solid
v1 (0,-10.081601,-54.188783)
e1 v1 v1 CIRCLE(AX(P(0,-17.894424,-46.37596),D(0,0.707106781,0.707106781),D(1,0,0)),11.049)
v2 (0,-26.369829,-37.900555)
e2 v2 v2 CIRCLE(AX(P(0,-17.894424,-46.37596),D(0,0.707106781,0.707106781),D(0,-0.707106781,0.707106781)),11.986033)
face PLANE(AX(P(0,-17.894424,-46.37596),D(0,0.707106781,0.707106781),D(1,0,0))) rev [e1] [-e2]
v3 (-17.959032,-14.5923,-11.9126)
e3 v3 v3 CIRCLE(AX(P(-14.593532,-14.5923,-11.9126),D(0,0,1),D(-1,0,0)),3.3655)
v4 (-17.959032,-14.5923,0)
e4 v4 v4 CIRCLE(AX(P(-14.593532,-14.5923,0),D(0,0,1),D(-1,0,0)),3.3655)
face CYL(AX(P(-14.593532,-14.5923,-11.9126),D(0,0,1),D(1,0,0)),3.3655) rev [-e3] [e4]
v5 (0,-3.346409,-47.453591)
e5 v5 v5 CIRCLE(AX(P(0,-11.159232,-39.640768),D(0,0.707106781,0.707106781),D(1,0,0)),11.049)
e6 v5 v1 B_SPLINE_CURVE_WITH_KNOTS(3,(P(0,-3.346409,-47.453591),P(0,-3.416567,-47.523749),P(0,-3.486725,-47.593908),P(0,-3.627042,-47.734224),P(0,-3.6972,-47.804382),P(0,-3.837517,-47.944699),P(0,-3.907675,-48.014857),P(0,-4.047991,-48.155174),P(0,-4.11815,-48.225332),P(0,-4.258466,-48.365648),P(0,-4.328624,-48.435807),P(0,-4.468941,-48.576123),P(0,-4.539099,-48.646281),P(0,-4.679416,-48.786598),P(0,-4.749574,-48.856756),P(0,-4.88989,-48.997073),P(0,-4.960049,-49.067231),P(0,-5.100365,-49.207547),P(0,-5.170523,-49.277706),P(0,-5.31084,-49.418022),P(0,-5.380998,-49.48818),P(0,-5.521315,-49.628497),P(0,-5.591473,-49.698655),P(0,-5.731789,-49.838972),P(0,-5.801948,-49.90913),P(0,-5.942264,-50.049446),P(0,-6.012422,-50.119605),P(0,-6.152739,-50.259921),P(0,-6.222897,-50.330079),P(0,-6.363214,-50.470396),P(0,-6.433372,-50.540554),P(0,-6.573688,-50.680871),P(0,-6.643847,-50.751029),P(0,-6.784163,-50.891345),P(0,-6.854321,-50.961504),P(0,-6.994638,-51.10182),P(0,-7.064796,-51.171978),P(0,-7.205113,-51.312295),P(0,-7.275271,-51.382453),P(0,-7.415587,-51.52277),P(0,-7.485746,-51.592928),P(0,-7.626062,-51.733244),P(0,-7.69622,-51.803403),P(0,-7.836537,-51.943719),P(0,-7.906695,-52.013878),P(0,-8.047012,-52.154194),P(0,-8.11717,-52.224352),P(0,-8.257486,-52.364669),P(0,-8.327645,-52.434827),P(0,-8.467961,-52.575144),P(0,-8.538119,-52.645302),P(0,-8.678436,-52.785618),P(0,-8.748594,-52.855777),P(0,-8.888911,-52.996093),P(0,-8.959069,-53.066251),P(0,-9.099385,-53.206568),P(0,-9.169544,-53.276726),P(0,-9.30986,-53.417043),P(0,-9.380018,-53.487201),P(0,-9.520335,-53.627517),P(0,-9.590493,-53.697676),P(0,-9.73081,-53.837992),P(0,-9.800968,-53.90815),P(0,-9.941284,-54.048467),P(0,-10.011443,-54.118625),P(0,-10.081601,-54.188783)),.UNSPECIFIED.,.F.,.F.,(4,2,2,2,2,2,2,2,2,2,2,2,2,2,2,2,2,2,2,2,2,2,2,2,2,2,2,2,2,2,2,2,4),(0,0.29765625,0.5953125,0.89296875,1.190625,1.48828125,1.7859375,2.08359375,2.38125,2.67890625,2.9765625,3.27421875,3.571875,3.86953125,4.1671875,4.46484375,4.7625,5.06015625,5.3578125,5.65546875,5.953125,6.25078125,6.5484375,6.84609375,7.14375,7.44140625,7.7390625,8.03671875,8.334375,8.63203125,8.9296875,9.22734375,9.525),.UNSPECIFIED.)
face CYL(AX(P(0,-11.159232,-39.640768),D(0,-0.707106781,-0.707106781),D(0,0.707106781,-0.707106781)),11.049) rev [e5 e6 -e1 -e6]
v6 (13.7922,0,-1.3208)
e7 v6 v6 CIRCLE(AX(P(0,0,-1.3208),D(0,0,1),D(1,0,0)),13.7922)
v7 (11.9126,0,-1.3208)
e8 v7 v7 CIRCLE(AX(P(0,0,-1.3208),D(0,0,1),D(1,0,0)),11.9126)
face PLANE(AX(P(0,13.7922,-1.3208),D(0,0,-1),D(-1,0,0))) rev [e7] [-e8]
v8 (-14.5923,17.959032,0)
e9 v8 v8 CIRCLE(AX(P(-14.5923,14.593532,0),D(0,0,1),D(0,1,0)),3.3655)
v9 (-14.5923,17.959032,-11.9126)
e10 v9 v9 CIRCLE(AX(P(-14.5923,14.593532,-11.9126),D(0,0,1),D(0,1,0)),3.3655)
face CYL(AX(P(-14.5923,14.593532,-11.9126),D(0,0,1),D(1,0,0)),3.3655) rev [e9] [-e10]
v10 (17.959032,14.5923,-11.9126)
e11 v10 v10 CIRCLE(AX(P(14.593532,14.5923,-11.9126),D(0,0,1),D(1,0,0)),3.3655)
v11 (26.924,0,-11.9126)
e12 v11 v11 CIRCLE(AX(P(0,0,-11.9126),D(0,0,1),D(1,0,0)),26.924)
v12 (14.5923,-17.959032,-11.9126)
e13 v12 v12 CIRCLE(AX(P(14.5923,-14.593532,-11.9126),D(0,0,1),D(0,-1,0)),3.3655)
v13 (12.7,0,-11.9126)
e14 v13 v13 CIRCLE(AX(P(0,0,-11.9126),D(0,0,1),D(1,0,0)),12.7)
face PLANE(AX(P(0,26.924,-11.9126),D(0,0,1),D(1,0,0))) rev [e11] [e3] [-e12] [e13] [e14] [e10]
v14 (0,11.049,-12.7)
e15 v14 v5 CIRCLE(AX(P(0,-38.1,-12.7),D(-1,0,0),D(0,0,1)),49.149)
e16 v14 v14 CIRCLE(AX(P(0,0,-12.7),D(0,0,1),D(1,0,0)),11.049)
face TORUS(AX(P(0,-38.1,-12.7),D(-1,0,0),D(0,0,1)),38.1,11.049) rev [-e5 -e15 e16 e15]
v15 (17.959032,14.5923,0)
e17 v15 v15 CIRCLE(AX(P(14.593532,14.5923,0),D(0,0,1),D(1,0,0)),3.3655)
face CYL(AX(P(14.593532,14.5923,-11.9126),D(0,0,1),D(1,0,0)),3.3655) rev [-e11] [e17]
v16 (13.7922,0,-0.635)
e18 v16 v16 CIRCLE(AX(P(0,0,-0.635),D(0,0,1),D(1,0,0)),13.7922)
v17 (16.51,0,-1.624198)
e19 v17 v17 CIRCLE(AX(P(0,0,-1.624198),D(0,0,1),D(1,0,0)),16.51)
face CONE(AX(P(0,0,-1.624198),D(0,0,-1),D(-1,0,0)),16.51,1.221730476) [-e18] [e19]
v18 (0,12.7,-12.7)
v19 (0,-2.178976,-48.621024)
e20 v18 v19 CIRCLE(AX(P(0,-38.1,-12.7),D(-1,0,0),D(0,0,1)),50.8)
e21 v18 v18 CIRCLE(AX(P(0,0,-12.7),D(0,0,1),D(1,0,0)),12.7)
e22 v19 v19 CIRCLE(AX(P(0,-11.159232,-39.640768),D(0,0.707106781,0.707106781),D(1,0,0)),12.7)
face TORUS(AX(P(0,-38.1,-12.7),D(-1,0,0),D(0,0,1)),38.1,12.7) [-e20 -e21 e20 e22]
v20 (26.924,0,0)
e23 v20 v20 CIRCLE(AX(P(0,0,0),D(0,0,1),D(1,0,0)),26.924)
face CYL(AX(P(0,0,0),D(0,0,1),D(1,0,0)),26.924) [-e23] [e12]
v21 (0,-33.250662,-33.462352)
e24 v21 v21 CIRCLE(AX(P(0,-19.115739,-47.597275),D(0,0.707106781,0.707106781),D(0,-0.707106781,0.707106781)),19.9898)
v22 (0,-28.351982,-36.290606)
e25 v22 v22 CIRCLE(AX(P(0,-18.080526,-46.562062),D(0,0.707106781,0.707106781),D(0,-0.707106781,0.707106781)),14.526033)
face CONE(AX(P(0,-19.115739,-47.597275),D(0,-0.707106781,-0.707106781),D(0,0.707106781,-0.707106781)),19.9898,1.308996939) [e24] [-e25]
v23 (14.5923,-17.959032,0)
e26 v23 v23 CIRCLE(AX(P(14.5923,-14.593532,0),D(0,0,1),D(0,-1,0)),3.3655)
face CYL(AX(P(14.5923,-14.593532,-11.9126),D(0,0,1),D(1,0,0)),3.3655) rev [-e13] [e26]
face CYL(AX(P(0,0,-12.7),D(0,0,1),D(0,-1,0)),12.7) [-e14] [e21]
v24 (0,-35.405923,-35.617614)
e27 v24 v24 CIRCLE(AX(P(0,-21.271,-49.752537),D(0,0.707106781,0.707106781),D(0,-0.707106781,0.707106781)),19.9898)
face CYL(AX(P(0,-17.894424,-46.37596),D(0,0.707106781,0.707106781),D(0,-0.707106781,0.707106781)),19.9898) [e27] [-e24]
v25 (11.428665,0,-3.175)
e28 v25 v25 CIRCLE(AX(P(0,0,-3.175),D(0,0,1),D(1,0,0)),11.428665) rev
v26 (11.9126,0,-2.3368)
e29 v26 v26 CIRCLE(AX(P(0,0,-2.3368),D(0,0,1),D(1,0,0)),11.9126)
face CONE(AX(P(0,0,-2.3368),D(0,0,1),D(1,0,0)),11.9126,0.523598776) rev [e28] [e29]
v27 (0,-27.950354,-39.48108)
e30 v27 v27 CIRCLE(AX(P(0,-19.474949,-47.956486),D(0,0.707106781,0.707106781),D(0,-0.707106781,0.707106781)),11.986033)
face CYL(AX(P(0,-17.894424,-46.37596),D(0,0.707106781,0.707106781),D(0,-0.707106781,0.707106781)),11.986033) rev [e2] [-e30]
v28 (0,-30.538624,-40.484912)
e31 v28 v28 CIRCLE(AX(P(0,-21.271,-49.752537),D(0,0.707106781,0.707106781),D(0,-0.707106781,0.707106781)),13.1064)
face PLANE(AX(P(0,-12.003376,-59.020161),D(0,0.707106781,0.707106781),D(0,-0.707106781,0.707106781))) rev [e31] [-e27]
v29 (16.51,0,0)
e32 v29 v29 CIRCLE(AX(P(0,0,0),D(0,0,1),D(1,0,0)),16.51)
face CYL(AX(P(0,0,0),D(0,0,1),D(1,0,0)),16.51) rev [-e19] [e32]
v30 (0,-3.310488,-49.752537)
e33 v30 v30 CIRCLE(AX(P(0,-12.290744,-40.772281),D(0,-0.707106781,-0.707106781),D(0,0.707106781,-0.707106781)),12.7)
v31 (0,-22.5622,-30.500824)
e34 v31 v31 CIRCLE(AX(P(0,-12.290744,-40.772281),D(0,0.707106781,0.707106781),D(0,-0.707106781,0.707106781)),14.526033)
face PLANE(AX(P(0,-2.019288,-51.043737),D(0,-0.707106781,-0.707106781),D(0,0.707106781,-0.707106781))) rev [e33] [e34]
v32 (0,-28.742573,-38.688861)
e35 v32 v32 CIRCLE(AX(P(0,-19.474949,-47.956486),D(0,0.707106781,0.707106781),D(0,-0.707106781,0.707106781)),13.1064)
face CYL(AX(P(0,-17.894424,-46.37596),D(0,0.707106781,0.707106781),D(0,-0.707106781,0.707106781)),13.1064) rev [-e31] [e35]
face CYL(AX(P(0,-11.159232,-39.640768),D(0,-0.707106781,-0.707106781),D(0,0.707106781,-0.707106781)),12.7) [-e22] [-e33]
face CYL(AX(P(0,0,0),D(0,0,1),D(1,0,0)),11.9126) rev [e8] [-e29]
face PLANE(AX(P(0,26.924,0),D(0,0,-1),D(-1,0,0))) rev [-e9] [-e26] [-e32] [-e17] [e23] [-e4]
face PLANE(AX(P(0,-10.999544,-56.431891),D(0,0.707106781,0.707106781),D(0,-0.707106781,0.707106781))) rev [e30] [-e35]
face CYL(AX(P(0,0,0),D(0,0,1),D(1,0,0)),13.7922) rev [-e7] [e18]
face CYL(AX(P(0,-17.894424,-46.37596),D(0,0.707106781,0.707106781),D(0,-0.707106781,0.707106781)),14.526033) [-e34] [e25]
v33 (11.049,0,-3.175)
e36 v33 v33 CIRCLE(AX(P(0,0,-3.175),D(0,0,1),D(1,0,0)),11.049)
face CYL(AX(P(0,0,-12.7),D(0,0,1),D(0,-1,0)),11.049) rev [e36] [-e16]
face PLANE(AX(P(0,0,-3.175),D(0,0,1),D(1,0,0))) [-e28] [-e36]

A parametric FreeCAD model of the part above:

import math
import FreeCAD as App
import Part
import Sketcher
Q = App.Units.Quantity

doc = App.newDocument("Part")
params = doc.addObject("Spreadsheet::Sheet", "Params")
for row, (alias, value) in enumerate([
    ("sketch1_width", "0.41 in"),
    ("sketch1_height", "0.04 in"),
    ("sketch1_width2", "0.074 in"),
    ("sketch1_height2", "0.027 in"),
    ("sketch1_height3", "0.469 in"),
    ("revolution_angle", "360 deg"),
    ("sketch2_diameter", "0.265 in"),
    ("sketch3_diameter", "1 in"),
    ("sketch3_diameter2", "0.87 in"),
    ("sketch4_radius", "1.5 in"),
    ("sketch4_height", "0.375 in"),
    ("sketch4_length", "0.375 in"),
    ("sketch5_length", "0.1 in"),
    ("sketch5_length2", "0.4 in"),
    ("sketch5_length3", "0.5 in"),
    ("sketch5_length4", "0.12 in"),
    ("sketch5_length5", "0.271 in"),
    ("revolution2_angle", "360 deg"),
], start=1):
    params.set(f"A{row}", alias)
    params.set(f"B{row}", "=" + value)
    params.setAlias(f"B{row}", alias)

body = doc.addObject("PartDesign::Body", "Body")

# Sketch on YZ plane
sketch1 = doc.addObject("Sketcher::SketchObject", "Sketch")
body.addObject(sketch1)
sketch1.AttachmentSupport = (doc.YZ_Plane, [""])
sketch1.MapMode = "FlatFace"
sketch1.addGeometry([
    Part.LineSegment(App.Vector(26.9, 0, 0), App.Vector(16.5, 0, 0)),  # 0
    Part.LineSegment(App.Vector(16.5, 0, 0), App.Vector(16.5, -1.6, 0)),  # 1
    Part.LineSegment(App.Vector(16.5, -1.6, 0), App.Vector(13.8, -0.6, 0)),  # 2
    Part.LineSegment(App.Vector(13.8, -0.6, 0), App.Vector(13.8, -1.3, 0)),  # 3
    Part.LineSegment(App.Vector(13.8, -1.3, 0), App.Vector(11.9, -1.3, 0)),  # 4
    Part.LineSegment(App.Vector(11.9, -1.3, 0), App.Vector(11.9, -2.3, 0)),  # 5
    Part.LineSegment(App.Vector(11.9, -2.3, 0), App.Vector(11.1, -3.7, 0)),  # 6
    Part.LineSegment(App.Vector(11.1, -3.7, 0), App.Vector(11.1, -11.9, 0)),  # 7
    Part.LineSegment(App.Vector(11.1, -11.9, 0), App.Vector(26.9, -11.9, 0)),  # 8
    Part.LineSegment(App.Vector(26.9, -11.9, 0), App.Vector(26.9, 0, 0)),  # 9
], False)
sketch1.addConstraint([
    Sketcher.Constraint("Coincident", 0, 2, 1, 1),
    Sketcher.Constraint("Coincident", 1, 2, 2, 1),
    Sketcher.Constraint("Coincident", 2, 2, 3, 1),
    Sketcher.Constraint("Coincident", 3, 2, 4, 1),
    Sketcher.Constraint("Coincident", 4, 2, 5, 1),
    Sketcher.Constraint("Coincident", 5, 2, 6, 1),
    Sketcher.Constraint("Coincident", 6, 2, 7, 1),
    Sketcher.Constraint("Coincident", 7, 2, 8, 1),
    Sketcher.Constraint("Coincident", 8, 2, 9, 1),
    Sketcher.Constraint("Coincident", 9, 2, 0, 1),
    Sketcher.Constraint("Horizontal", 0),
    Sketcher.Constraint("Vertical", 1),
    Sketcher.Constraint("Vertical", 3),
    Sketcher.Constraint("Horizontal", 4),
    Sketcher.Constraint("Vertical", 5),
    Sketcher.Constraint("Vertical", 7),
    Sketcher.Constraint("Horizontal", 8),
    Sketcher.Constraint("Vertical", 9),
    Sketcher.Constraint("PointOnObject", 0, 2, -1),
    Sketcher.Constraint("Angle", 2, Q("160 deg")),
    Sketcher.Constraint("Angle", 6, Q("-120 deg")),
    Sketcher.Constraint("DistanceX", 0, 2, 0, 1, Q("0.41 in")),
    Sketcher.Constraint("DistanceY", 5, 2, 5, 1, Q("0.04 in")),
    Sketcher.Constraint("DistanceX", 4, 2, 4, 1, Q("0.074 in")),
    Sketcher.Constraint("DistanceY", 3, 2, 3, 1, Q("0.027 in")),
    Sketcher.Constraint("DistanceY", 9, 1, 9, 2, Q("0.469 in")),
    Sketcher.Constraint("DistanceX", -1, 1, 0, 2, Q("0.65 in")),
    Sketcher.Constraint("Distance", 6, Q("0.063 in")),
    Sketcher.Constraint("DistanceX", 8, 1, 8, 2, Q("0.6225 in")),
    Sketcher.Constraint("DistanceY", 2, 2, -1, 1, Q("0.025 in")),
])
sketch1.setExpression("Constraints[21]", "Params.sketch1_width")
sketch1.setExpression("Constraints[22]", "Params.sketch1_height")
sketch1.setExpression("Constraints[23]", "Params.sketch1_width2")
sketch1.setExpression("Constraints[24]", "Params.sketch1_height2")
sketch1.setExpression("Constraints[25]", "Params.sketch1_height3")
revolution = doc.addObject("PartDesign::Revolution", "Revolution")
body.addObject(revolution)
revolution.Profile = sketch1
revolution.ReferenceAxis = (sketch1, ["V_Axis"])
revolution.setExpression("Angle", "Params.revolution_angle")

# Sketch on XY plane
sketch2 = doc.addObject("Sketcher::SketchObject", "Sketch001")
body.addObject(sketch2)
sketch2.AttachmentSupport = (doc.XY_Plane, [""])
sketch2.MapMode = "FlatFace"
sketch2.addGeometry(Part.Circle(App.Vector(14.6, 14.6, 0), App.Vector(0, 0, 1), 3.4), False)
sketch2.addConstraint([
    Sketcher.Constraint("Diameter", 0, Q("0.265 in")),
    Sketcher.Constraint("DistanceY", -1, 1, 0, 3, Q("0.5745 in")),
    Sketcher.Constraint("DistanceX", -1, 1, 0, 3, 14.593532),
])
sketch2.setExpression("Constraints[0]", "Params.sketch2_diameter")
pocket1 = doc.addObject("PartDesign::Pocket", "Pocket")
body.addObject(pocket1)
pocket1.Profile = sketch2
pocket1.Type = "ThroughAll"
doc.recompute()

polarpattern = doc.addObject("PartDesign::PolarPattern", "PolarPattern")
body.addObject(polarpattern)
polarpattern.Originals = [pocket1]
polarpattern.Axis = (doc.Z_Axis, [""])
polarpattern.Angle = 360
polarpattern.Occurrences = 4
body.Tip = polarpattern

# Sketch on XY plane
sketch3 = doc.addObject("Sketcher::SketchObject", "Sketch002")
body.addObject(sketch3)
sketch3.AttachmentSupport = (doc.XY_Plane, [""])
sketch3.MapMode = "FlatFace"
sketch3.AttachmentOffset = App.Placement(App.Vector(0, 0, -0.125 * 25.4), App.Rotation())
sketch3.addGeometry([
    Part.Circle(App.Vector(0, 0, 0), App.Vector(0, 0, 1), 13),
    Part.Circle(App.Vector(0, 0, 0), App.Vector(0, 0, 1), 11),
], False)
sketch3.addConstraint([
    Sketcher.Constraint("Coincident", 0, 3, -1, 1),
    Sketcher.Constraint("Coincident", 1, 3, -1, 1),
    Sketcher.Constraint("Diameter", 0, Q("1 in")),
    Sketcher.Constraint("Diameter", 1, Q("0.87 in")),
])
sketch3.setExpression("Constraints[2]", "Params.sketch3_diameter")
sketch3.setExpression("Constraints[3]", "Params.sketch3_diameter2")

# Sketch on YZ plane
sketch4 = doc.addObject("Sketcher::SketchObject", "Sketch003")
body.addObject(sketch4)
sketch4.AttachmentSupport = (doc.YZ_Plane, [""])
sketch4.MapMode = "FlatFace"
sketch4.addGeometry([
    Part.LineSegment(App.Vector(0, -3, 0), App.Vector(0, -13, 0)),
    Part.ArcOfCircle(Part.Circle(App.Vector(-38, -13, 0), App.Vector(0, 0, 1), 38), math.radians(-45), math.radians(0)),
    Part.LineSegment(App.Vector(-11, -40, 0), App.Vector(-18, -46, 0)),
], False)
sketch4.addConstraint([
    Sketcher.Constraint("Tangent", 0, 2, 1, 2),
    Sketcher.Constraint("Tangent", 1, 1, 2, 1),
    Sketcher.Constraint("Vertical", 0),
    Sketcher.Constraint("PointOnObject", 0, 1, -2),
    Sketcher.Constraint("Radius", 1, Q("1.5 in")),
    Sketcher.Constraint("Angle", 2, Q("-135 deg")),
    Sketcher.Constraint("DistanceY", 1, 3, -1, 1, Q("0.5 in")),
    Sketcher.Constraint("DistanceY", 0, 2, 0, 1, Q("0.375 in")),
    Sketcher.Constraint("Distance", 2, Q("0.375 in")),
])
sketch4.setExpression("Constraints[4]", "Params.sketch4_radius")
sketch4.setExpression("Constraints[7]", "Params.sketch4_height")
sketch4.setExpression("Constraints[8]", "Params.sketch4_length")
doc.recompute()

additivepipe = doc.addObject("PartDesign::AdditivePipe", "AdditivePipe")
body.addObject(additivepipe)
additivepipe.Profile = sketch3
additivepipe.Spine = (sketch4, ["Edge1", "Edge2", "Edge3"])

# Sketch on YZ plane
sketch5 = doc.addObject("Sketcher::SketchObject", "Sketch004")
body.addObject(sketch5)
sketch5.AttachmentSupport = (doc.YZ_Plane, [""])
sketch5.MapMode = "FlatFace"
sketch5.addGeometry([
    Part.LineSegment(App.Vector(-11, -56.4, 0), App.Vector(-10.2, -57.2, 0)),  # 0
    Part.LineSegment(App.Vector(-10.2, -57.2, 0), App.Vector(-12, -59, 0)),  # 1
    Part.LineSegment(App.Vector(-12, -59, 0), App.Vector(-7.1, -63.9, 0)),  # 2
    Part.LineSegment(App.Vector(-7.1, -63.9, 0), App.Vector(-5, -61.7, 0)),  # 3
    Part.LineSegment(App.Vector(-5, -61.7, 0), App.Vector(-7.8, -56.8, 0)),  # 4
    Part.LineSegment(App.Vector(-7.8, -56.8, 0), App.Vector(-2, -51, 0)),  # 5
    Part.LineSegment(App.Vector(-2, -51, 0), App.Vector(-3.8, -49.2, 0)),  # 6
    Part.LineSegment(App.Vector(-3.8, -49.2, 0), App.Vector(-11, -56.4, 0)),  # 7
], False)
sketch5.addGeometry(Part.LineSegment(App.Vector(-12.3, -40.8, 0), App.Vector(-21.3, -49.8, 0)), True)  # axis
sketch5.addConstraint([
    Sketcher.Constraint("Coincident", 0, 2, 1, 1),
    Sketcher.Constraint("Coincident", 1, 2, 2, 1),
    Sketcher.Constraint("Coincident", 2, 2, 3, 1),
    Sketcher.Constraint("Coincident", 3, 2, 4, 1),
    Sketcher.Constraint("Coincident", 4, 2, 5, 1),
    Sketcher.Constraint("Coincident", 5, 2, 6, 1),
    Sketcher.Constraint("Coincident", 6, 2, 7, 1),
    Sketcher.Constraint("Coincident", 7, 2, 0, 1),
    Sketcher.Constraint("Perpendicular", 0, 1),
    Sketcher.Constraint("Perpendicular", 1, 2),
    Sketcher.Constraint("Perpendicular", 2, 3),
    Sketcher.Constraint("Parallel", 3, 5),
    Sketcher.Constraint("Perpendicular", 5, 6),
    Sketcher.Constraint("Perpendicular", 6, 7),
    Sketcher.Constraint("Parallel", 7, 8),
    Sketcher.Constraint("Equal", 1, 6),
    Sketcher.Constraint("Angle", 0, Q("-45 deg")),
    Sketcher.Constraint("Angle", 4, Q("120 deg")),
    Sketcher.Constraint("Distance", 1, Q("0.1 in")),
    Sketcher.Constraint("Distance", 7, Q("0.4 in")),
    Sketcher.Constraint("Distance", 8, Q("0.5 in")),
    Sketcher.Constraint("Distance", 3, Q("0.12 in")),
    Sketcher.Constraint("Distance", 2, Q("0.271 in")),
    Sketcher.Constraint("DistanceY", 3, 2, -1, 1, 61.732198),
    Sketcher.Constraint("DistanceX", 8, 2, -1, 1, 21.271),
    Sketcher.Constraint("DistanceX", 8, 1, 7, 2, 1.2912),
    Sketcher.Constraint("Distance", 4, 5.656508),
    Sketcher.Constraint("DistanceY", 8, 1, -1, 1, 40.772281),
])
sketch5.setExpression("Constraints[18]", "Params.sketch5_length")
sketch5.setExpression("Constraints[19]", "Params.sketch5_length2")
sketch5.setExpression("Constraints[20]", "Params.sketch5_length3")
sketch5.setExpression("Constraints[21]", "Params.sketch5_length4")
sketch5.setExpression("Constraints[22]", "Params.sketch5_length5")
revolution2 = doc.addObject("PartDesign::Revolution", "Revolution001")
body.addObject(revolution2)
revolution2.Profile = sketch5
revolution2.ReferenceAxis = (sketch5, ["Axis0"])
revolution2.setExpression("Angle", "Params.revolution2_angle")

doc.recompute()
